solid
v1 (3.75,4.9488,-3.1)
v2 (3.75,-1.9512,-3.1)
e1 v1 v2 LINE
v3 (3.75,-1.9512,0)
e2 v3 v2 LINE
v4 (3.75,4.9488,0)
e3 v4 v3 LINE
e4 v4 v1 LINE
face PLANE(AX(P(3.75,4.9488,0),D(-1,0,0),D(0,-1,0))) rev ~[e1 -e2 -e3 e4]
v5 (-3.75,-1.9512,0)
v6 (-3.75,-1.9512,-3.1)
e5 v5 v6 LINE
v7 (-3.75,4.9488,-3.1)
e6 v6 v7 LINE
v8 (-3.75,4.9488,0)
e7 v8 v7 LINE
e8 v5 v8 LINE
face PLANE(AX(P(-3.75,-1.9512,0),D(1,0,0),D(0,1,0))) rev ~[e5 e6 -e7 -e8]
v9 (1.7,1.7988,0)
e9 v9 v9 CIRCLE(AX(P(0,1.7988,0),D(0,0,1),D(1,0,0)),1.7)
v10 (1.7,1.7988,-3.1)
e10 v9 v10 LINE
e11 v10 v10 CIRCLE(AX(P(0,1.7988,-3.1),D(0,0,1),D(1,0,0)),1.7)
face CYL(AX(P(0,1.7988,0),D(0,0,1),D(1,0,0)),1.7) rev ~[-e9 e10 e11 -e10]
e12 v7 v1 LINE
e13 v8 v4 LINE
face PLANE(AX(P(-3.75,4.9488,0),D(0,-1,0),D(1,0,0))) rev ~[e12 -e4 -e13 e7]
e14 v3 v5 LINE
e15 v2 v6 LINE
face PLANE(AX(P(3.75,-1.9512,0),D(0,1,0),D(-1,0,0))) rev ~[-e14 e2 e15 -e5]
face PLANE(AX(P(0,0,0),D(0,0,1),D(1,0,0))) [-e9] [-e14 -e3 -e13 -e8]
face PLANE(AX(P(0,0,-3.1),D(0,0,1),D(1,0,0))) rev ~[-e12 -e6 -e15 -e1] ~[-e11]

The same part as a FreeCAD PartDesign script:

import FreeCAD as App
import Part
import Sketcher


def add_polygon(sketch, points):
    """Adds a closed chain of lines whose ends are joined by coincident constraints."""
    first, n = sketch.GeometryCount, len(points)
    for a, b in zip(points, points[1:] + points[:1]):
        sketch.addGeometry(Part.LineSegment(App.Vector(*a, 0), App.Vector(*b, 0)), False)
    for i in range(n):
        sketch.addConstraint(Sketcher.Constraint("Coincident", first + i, 2, first + (i + 1) % n, 1))

doc = App.newDocument("Part")
body = doc.addObject("PartDesign::Body", "Body")

# Sketch on XY plane
sketch1 = body.newObject("Sketcher::SketchObject", "Sketch")
sketch1.AttachmentSupport = (doc.getObject("XY_Plane"), [""])
sketch1.MapMode = "FlatFace"
add_polygon(sketch1, [(3.8, -2), (3.8, 4.9), (-3.8, 4.9), (-3.8, -2)])  # lines 0-3
sketch1.addGeometry(Part.Circle(App.Vector(0, 1.8, 0), App.Vector(0, 0, 1), 1.7), False)  # 4
sketch1.addConstraint(Sketcher.Constraint("Vertical", 0))
sketch1.addConstraint(Sketcher.Constraint("Horizontal", 1))
sketch1.addConstraint(Sketcher.Constraint("Vertical", 2))
sketch1.addConstraint(Sketcher.Constraint("Horizontal", 3))
sketch1.addConstraint(Sketcher.Constraint("PointOnObject", 4, 3, -2))
sketch1.addConstraint(Sketcher.Constraint("Diameter", 4, 3.4))
sketch1.addConstraint(Sketcher.Constraint("DistanceX", -1, 1, 0, 2, 3.75))
sketch1.addConstraint(Sketcher.Constraint("DistanceX", 1, 2, -1, 1, 3.75))
sketch1.addConstraint(Sketcher.Constraint("DistanceY", 2, 2, 4, 3, 3.75))
sketch1.addConstraint(Sketcher.Constraint("DistanceY", 0, 1, 0, 2, 6.9))
sketch1.addConstraint(Sketcher.Constraint("DistanceY", -1, 1, 4, 3, 1.7988))
pad1 = body.newObject("PartDesign::Pad", "Pad")
pad1.Profile = sketch1
pad1.Length = 3.1
pad1.Reversed = True

doc.recompute()
